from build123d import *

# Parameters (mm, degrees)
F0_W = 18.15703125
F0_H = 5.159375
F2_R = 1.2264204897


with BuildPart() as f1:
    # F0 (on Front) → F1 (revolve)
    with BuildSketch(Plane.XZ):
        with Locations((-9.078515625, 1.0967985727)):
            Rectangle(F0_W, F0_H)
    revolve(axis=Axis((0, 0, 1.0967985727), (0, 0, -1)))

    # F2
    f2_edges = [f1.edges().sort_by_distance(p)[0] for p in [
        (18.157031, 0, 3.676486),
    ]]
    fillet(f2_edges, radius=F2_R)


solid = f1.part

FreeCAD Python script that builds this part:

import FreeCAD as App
import Part
import Sketcher
Q = App.Units.Quantity


def edges_at(feature, points):
    """Names of the edges that pass closest to the given points."""
    edges = feature.Shape.Edges
    near = lambda p: min(range(len(edges)), key=lambda i: edges[i].distToShape(Part.Vertex(*p))[0])
    return sorted({f"Edge{near(p) + 1}" for p in points})

doc = App.newDocument("Part")
body = doc.addObject("PartDesign::Body", "Body")

# Sketch on XZ plane
sketch1 = body.newObject("Sketcher::SketchObject", "Sketch")
sketch1.AttachmentSupport = (doc.getObject("XZ_Plane"), [""])
sketch1.MapMode = "FlatFace"
sketch1.addGeometry([
    Part.LineSegment(App.Vector(-18, 4, 0), App.Vector(-18, -1, 0)),
    Part.LineSegment(App.Vector(-18, -1, 0), App.Vector(0, -1, 0)),
    Part.LineSegment(App.Vector(0, -1, 0), App.Vector(0, 4, 0)),
    Part.LineSegment(App.Vector(0, 4, 0), App.Vector(-18, 4, 0)),
], False)
sketch1.addConstraint([
    Sketcher.Constraint("Coincident", 0, 2, 1, 1),
    Sketcher.Constraint("Coincident", 1, 2, 2, 1),
    Sketcher.Constraint("Coincident", 2, 2, 3, 1),
    Sketcher.Constraint("Coincident", 3, 2, 0, 1),
    Sketcher.Constraint("Vertical", 0),
    Sketcher.Constraint("Horizontal", 1),
    Sketcher.Constraint("Vertical", 2),
    Sketcher.Constraint("Horizontal", 3),
    Sketcher.Constraint("PointOnObject", 1, 2, -2),
    Sketcher.Constraint("DistanceY", 0, 2, 0, 1, Q("0.203125 in")),
    Sketcher.Constraint("DistanceX", 1, 1, 1, 2, Q("18.157031 mm")),
    Sketcher.Constraint("DistanceY", 0, 2, -1, 1, Q("1.482889 mm")),
])
revolution = body.newObject("PartDesign::Revolution", "Revolution")
revolution.Profile = sketch1
revolution.ReferenceAxis = (sketch1, ["V_Axis"])
revolution.Angle = 360
doc.recompute()

fillet = body.newObject("PartDesign::Fillet", "Fillet")
fillet.Base = (revolution, edges_at(revolution, [(18.157, 0, 3.676)]))
fillet.Radius = 1.22642

doc.recompute()
